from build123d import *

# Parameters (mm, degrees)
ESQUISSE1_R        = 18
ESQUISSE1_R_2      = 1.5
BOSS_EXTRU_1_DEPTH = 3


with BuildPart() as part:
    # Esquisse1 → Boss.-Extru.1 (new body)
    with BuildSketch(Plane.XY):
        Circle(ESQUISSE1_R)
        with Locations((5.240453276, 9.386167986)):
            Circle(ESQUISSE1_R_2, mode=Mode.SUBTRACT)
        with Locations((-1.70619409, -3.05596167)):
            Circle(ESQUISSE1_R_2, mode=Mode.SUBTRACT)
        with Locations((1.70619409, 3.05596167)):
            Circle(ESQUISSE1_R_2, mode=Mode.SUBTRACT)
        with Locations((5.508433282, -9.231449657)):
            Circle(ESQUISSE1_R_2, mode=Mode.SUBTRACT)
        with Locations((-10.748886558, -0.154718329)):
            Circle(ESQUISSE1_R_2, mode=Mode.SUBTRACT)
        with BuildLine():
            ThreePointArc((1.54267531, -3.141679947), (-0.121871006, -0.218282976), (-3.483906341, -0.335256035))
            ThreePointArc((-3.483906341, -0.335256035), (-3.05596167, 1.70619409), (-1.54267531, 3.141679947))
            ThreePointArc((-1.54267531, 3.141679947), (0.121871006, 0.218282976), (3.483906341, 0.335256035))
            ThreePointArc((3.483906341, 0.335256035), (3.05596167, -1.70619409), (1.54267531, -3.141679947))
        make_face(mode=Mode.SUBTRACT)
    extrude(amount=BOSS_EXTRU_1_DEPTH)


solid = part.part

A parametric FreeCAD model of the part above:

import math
import FreeCAD as App
import Part
import Sketcher
from FreeCAD import Vector

doc = App.newDocument("Part")
body = doc.addObject("PartDesign::Body", "Body")

# Sketch on XY plane
sketch1 = doc.addObject("Sketcher::SketchObject", "Sketch")
body.addObject(sketch1)
sketch1.AttachmentSupport = (doc.XY_Plane, [""])
sketch1.MapMode = "FlatFace"
sketch1.addGeometry(Part.Circle(Vector(0, 0, 0), Vector(0, 0, 1), 18), False)
sketch1.addGeometry(Part.Circle(Vector(-10.7, -0.2, 0), Vector(0, 0, 1), 1.5), False)
sketch1.addGeometry(Part.Circle(Vector(5.5, -9.2, 0), Vector(0, 0, 1), 1.5), False)
sketch1.addGeometry(Part.Circle(Vector(-1.7, -3.1, 0), Vector(0, 0, 1), 1.5), False)
sketch1.addGeometry(Part.ArcOfCircle(Part.Circle(Vector(0, 0, 0), Vector(0, 0, 1), 3.5), math.radians(-64), math.radians(5)), False)
sketch1.addGeometry(Part.ArcOfCircle(Part.Circle(Vector(-1.7, -3.1, 0), Vector(0, 0, 1), 3.2), math.radians(-2), math.radians(123)), False)
sketch1.addGeometry(Part.ArcOfCircle(Part.Circle(Vector(0, 0, 0), Vector(0, 0, 1), 3.5), math.radians(116), math.radians(185)), False)
sketch1.addGeometry(Part.ArcOfCircle(Part.Circle(Vector(1.7, 3.1, 0), Vector(0, 0, 1), 3.2), math.radians(178), math.radians(303)), False)
sketch1.addGeometry(Part.Circle(Vector(1.7, 3.1, 0), Vector(0, 0, 1), 1.5), False)
sketch1.addGeometry(Part.Circle(Vector(5.2, 9.4, 0), Vector(0, 0, 1), 1.5), False)
sketch1.addConstraint(Sketcher.Constraint("Coincident", 4, 1, 5, 1))
sketch1.addConstraint(Sketcher.Constraint("Coincident", 5, 2, 6, 2))
sketch1.addConstraint(Sketcher.Constraint("Coincident", 6, 1, 7, 1))
sketch1.addConstraint(Sketcher.Constraint("Coincident", 7, 2, 4, 2))
sketch1.addConstraint(Sketcher.Constraint("Coincident", 0, 3, -1, 1))
sketch1.addConstraint(Sketcher.Constraint("Coincident", 4, 3, -1, 1))
sketch1.addConstraint(Sketcher.Constraint("Coincident", 6, 3, -1, 1))
sketch1.addConstraint(Sketcher.Constraint("Coincident", 5, 3, 3, 3))
sketch1.addConstraint(Sketcher.Constraint("Coincident", 8, 3, 7, 3))
sketch1.addConstraint(Sketcher.Constraint("Equal", 1, 2))
sketch1.addConstraint(Sketcher.Constraint("Equal", 2, 3))
sketch1.addConstraint(Sketcher.Constraint("Equal", 4, 6))
sketch1.addConstraint(Sketcher.Constraint("Equal", 5, 7))
sketch1.addConstraint(Sketcher.Constraint("Equal", 3, 8))
sketch1.addConstraint(Sketcher.Constraint("Equal", 8, 9))
sketch1.addConstraint(Sketcher.Constraint("Symmetric", 3, 3, 7, 3, -1, 1))
sketch1.addConstraint(Sketcher.Constraint("Diameter", 0, 36.0))
sketch1.addConstraint(Sketcher.Constraint("Diameter", 1, 3.0))
sketch1.addConstraint(Sketcher.Constraint("Radius", 4, 3.5))
sketch1.addConstraint(Sketcher.Constraint("Radius", 5, 3.25))
sketch1.addConstraint(Sketcher.Constraint("DistanceY", 1, 3, -1, 1, 0.154718))
sketch1.addConstraint(Sketcher.Constraint("DistanceY", 2, 3, -1, 1, 9.23145))
sketch1.addConstraint(Sketcher.Constraint("DistanceY", 3, 3, -1, 1, 3.055962))
sketch1.addConstraint(Sketcher.Constraint("DistanceY", 4, 1, -1, 1, 3.14168))
sketch1.addConstraint(Sketcher.Constraint("DistanceX", 1, 3, 2, 3, 16.25732))
sketch1.addConstraint(Sketcher.Constraint("DistanceX", 8, 3, 9, 3, 3.534259))
sketch1.addConstraint(Sketcher.Constraint("DistanceX", 1, 3, -1, 1, 10.748887))
sketch1.addConstraint(Sketcher.Constraint("DistanceY", -1, 1, 9, 3, 9.386168))
pad1 = doc.addObject("PartDesign::Pad", "Pad")
body.addObject(pad1)
pad1.Profile = sketch1
pad1.Length = 3

doc.recompute()
